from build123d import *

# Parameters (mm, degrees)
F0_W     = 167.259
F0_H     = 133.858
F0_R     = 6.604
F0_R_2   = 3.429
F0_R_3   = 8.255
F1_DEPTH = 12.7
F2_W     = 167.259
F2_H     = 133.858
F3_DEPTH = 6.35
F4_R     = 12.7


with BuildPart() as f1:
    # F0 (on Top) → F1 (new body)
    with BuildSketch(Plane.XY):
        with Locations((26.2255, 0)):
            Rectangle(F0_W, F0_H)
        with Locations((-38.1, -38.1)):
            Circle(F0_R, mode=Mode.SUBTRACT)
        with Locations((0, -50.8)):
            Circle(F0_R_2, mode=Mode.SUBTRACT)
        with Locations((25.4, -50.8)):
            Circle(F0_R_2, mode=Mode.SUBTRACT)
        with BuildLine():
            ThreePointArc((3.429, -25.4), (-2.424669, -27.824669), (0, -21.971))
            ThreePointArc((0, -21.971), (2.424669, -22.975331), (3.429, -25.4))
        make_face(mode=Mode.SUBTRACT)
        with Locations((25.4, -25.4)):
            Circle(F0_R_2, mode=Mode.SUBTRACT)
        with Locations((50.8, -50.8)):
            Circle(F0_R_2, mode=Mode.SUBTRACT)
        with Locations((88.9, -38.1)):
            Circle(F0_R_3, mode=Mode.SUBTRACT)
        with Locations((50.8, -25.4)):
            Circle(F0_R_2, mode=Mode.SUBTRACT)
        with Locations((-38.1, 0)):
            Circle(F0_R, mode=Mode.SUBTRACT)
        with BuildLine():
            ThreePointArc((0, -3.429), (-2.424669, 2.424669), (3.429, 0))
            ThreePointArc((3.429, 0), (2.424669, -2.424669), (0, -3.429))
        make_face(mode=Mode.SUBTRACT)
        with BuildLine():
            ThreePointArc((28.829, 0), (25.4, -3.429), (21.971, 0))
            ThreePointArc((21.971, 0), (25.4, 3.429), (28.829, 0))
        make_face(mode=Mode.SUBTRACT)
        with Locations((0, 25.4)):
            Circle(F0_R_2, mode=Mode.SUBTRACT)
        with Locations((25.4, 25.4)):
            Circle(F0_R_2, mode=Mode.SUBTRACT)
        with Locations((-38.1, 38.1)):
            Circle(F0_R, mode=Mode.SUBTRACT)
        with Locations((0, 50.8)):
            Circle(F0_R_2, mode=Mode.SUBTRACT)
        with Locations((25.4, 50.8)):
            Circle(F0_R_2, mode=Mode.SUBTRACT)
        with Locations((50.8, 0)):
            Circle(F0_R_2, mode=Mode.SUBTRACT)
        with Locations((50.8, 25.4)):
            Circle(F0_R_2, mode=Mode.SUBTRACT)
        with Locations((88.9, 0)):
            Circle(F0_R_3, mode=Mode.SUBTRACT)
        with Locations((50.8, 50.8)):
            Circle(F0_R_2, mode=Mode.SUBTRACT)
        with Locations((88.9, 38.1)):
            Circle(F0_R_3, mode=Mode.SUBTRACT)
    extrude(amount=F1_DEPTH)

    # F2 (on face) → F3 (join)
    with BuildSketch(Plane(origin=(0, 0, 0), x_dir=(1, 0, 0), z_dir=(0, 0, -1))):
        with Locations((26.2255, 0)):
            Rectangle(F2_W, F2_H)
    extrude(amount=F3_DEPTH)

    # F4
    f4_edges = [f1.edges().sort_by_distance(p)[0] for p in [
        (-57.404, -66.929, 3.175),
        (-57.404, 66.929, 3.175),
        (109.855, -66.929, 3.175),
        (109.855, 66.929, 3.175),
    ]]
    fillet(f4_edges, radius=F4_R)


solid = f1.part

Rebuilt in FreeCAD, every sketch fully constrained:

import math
import FreeCAD as App
import Part
import Sketcher
from FreeCAD import Vector
Q = App.Units.Quantity


def edges_at(feature, points):
    """Names of the edges that pass closest to the given points."""
    edges = feature.Shape.Edges
    near = lambda p: min(range(len(edges)), key=lambda i: edges[i].distToShape(Part.Vertex(*p))[0])
    return sorted({f"Edge{near(p) + 1}" for p in points})

doc = App.newDocument("Part")
body = doc.addObject("PartDesign::Body", "Body")

sketch1 = doc.addObject("Sketcher::SketchObject", "Sketch")
body.addObject(sketch1)
sketch1.AttachmentSupport = (doc.XY_Plane, [""])
sketch1.MapMode = "FlatFace"
sketch1.addGeometry(Part.LineSegment(Vector(-57.404, 66.929, 0), Vector(-57.404, -66.929, 0)), False)
sketch1.addGeometry(Part.LineSegment(Vector(-57.404, -66.929, 0), Vector(109.855, -66.929, 0)), False)
sketch1.addGeometry(Part.LineSegment(Vector(109.855, -66.929, 0), Vector(109.855, 66.929, 0)), False)
sketch1.addGeometry(Part.LineSegment(Vector(109.855, 66.929, 0), Vector(-57.404, 66.929, 0)), False)
sketch1.addGeometry(Part.Circle(Vector(-38.1, -38.1, 0), Vector(0, 0, 1), 6.604), False)
sketch1.addGeometry(Part.Circle(Vector(0, -50.8, 0), Vector(0, 0, 1), 3.429), False)
sketch1.addGeometry(Part.Circle(Vector(25.4, -50.8, 0), Vector(0, 0, 1), 3.429), False)
sketch1.addGeometry(Part.ArcOfCircle(Part.Circle(Vector(-0.000001, -25.400001, 0), Vector(0, 0, 1), 3.429001), math.radians(0.000009), math.radians(89.999991)), False)
sketch1.addGeometry(Part.ArcOfCircle(Part.Circle(Vector(0, -25.4, 0), Vector(0, 0, 1), 3.429), math.radians(90.000001), math.radians(359.999999)), False)
sketch1.addGeometry(Part.Circle(Vector(25.4, -25.4, 0), Vector(0, 0, 1), 3.429), False)
sketch1.addGeometry(Part.ArcOfCircle(Part.Circle(Vector(-0.000001, 0.000001, 0), Vector(0, 0, 1), 3.429001), math.radians(-89.999991), math.radians(-0.000009)), False)
sketch1.addGeometry(Part.ArcOfCircle(Part.Circle(Vector(0, 0, 0), Vector(0, 0, 1), 3.429), math.radians(0.000001), math.radians(269.999999)), False)
sketch1.addGeometry(Part.Circle(Vector(50.8, -50.8, 0), Vector(0, 0, 1), 3.429), False)
sketch1.addGeometry(Part.Circle(Vector(88.9, -38.1, 0), Vector(0, 0, 1), 8.255), False)
sketch1.addGeometry(Part.Circle(Vector(50.8, -25.4, 0), Vector(0, 0, 1), 3.429), False)
sketch1.addGeometry(Part.Circle(Vector(-38.1, 0, 0), Vector(0, 0, 1), 6.604), False)
sketch1.addGeometry(Part.Circle(Vector(25.4, 0, 0), Vector(0, 0, 1), 3.429), False)
sketch1.addGeometry(Part.Circle(Vector(0, 25.4, 0), Vector(0, 0, 1), 3.429), False)
sketch1.addGeometry(Part.Circle(Vector(25.4, 25.4, 0), Vector(0, 0, 1), 3.429), False)
sketch1.addGeometry(Part.Circle(Vector(-38.1, 38.1, 0), Vector(0, 0, 1), 6.604), False)
sketch1.addGeometry(Part.Circle(Vector(0, 50.8, 0), Vector(0, 0, 1), 3.429), False)
sketch1.addGeometry(Part.Circle(Vector(25.4, 50.8, 0), Vector(0, 0, 1), 3.429), False)
sketch1.addGeometry(Part.Circle(Vector(50.8, 0, 0), Vector(0, 0, 1), 3.429), False)
sketch1.addGeometry(Part.Circle(Vector(50.8, 25.4, 0), Vector(0, 0, 1), 3.429), False)
sketch1.addGeometry(Part.Circle(Vector(88.9, 0, 0), Vector(0, 0, 1), 8.255), False)
sketch1.addGeometry(Part.Circle(Vector(50.8, 50.8, 0), Vector(0, 0, 1), 3.429), False)
sketch1.addGeometry(Part.Circle(Vector(88.9, 38.1, 0), Vector(0, 0, 1), 8.255), False)
sketch1.addConstraint(Sketcher.Constraint("Coincident", 0, 2, 1, 1))
sketch1.addConstraint(Sketcher.Constraint("Coincident", 1, 2, 2, 1))
sketch1.addConstraint(Sketcher.Constraint("Coincident", 2, 2, 3, 1))
sketch1.addConstraint(Sketcher.Constraint("Coincident", 3, 2, 0, 1))
sketch1.addConstraint(Sketcher.Constraint("Tangent", 7, 1, 8, 2))
sketch1.addConstraint(Sketcher.Constraint("Coincident", 8, 1, 7, 2))
sketch1.addConstraint(Sketcher.Constraint("Tangent", 10, 1, 11, 2))
sketch1.addConstraint(Sketcher.Constraint("Coincident", 11, 1, 10, 2))
sketch1.addConstraint(Sketcher.Constraint("Vertical", 0))
sketch1.addConstraint(Sketcher.Constraint("Horizontal", 1))
sketch1.addConstraint(Sketcher.Constraint("Vertical", 2))
sketch1.addConstraint(Sketcher.Constraint("Horizontal", 3))
sketch1.addConstraint(Sketcher.Constraint("Coincident", 10, 3, -1, 1))
sketch1.addConstraint(Sketcher.Constraint("Equal", 5, 6))
sketch1.addConstraint(Sketcher.Constraint("Equal", 6, 7))
sketch1.addConstraint(Sketcher.Constraint("Equal", 8, 9))
sketch1.addConstraint(Sketcher.Constraint("Equal", 9, 10))
sketch1.addConstraint(Sketcher.Constraint("Equal", 11, 12))
sketch1.addConstraint(Sketcher.Constraint("Equal", 12, 14))
sketch1.addConstraint(Sketcher.Constraint("Equal", 4, 15))
sketch1.addConstraint(Sketcher.Constraint("Equal", 14, 16))
sketch1.addConstraint(Sketcher.Constraint("Equal", 16, 17))
sketch1.addConstraint(Sketcher.Constraint("Equal", 17, 18))
sketch1.addConstraint(Sketcher.Constraint("Equal", 15, 19))
sketch1.addConstraint(Sketcher.Constraint("Equal", 18, 20))
sketch1.addConstraint(Sketcher.Constraint("Equal", 20, 21))
sketch1.addConstraint(Sketcher.Constraint("Equal", 21, 22))
sketch1.addConstraint(Sketcher.Constraint("Equal", 22, 23))
sketch1.addConstraint(Sketcher.Constraint("Equal", 13, 24))
sketch1.addConstraint(Sketcher.Constraint("Equal", 23, 25))
sketch1.addConstraint(Sketcher.Constraint("Equal", 24, 26))
sketch1.addConstraint(Sketcher.Constraint("Symmetric", 7, 3, 17, 3, -1, 1))
sketch1.addConstraint(Sketcher.Constraint("Symmetric", 5, 3, 20, 3, -1, 1))
sketch1.addConstraint(Sketcher.Constraint("Symmetric", 9, 3, 18, 3, -1))
sketch1.addConstraint(Sketcher.Constraint("Symmetric", 4, 3, 19, 3, -1))
sketch1.addConstraint(Sketcher.Constraint("Symmetric", 6, 3, 21, 3, -1))
sketch1.addConstraint(Sketcher.Constraint("Symmetric", 14, 3, 23, 3, -1))
sketch1.addConstraint(Sketcher.Constraint("Symmetric", 12, 3, 25, 3, -1))
sketch1.addConstraint(Sketcher.Constraint("Symmetric", 13, 3, 26, 3, -1))
sketch1.addConstraint(Sketcher.Constraint("PointOnObject", 5, 3, -2))
sketch1.addConstraint(Sketcher.Constraint("PointOnObject", 7, 3, -2))
sketch1.addConstraint(Sketcher.Constraint("PointOnObject", 15, 3, -1))
sketch1.addConstraint(Sketcher.Constraint("PointOnObject", 16, 3, -1))
sketch1.addConstraint(Sketcher.Constraint("PointOnObject", 22, 3, -1))
sketch1.addConstraint(Sketcher.Constraint("PointOnObject", 24, 3, -1))
sketch1.addConstraint(Sketcher.Constraint("PointOnObject", 8, 1, -2))
sketch1.addConstraint(Sketcher.Constraint("PointOnObject", 10, 1, -2))
sketch1.addConstraint(Sketcher.Constraint("PointOnObject", 11, 1, -1))
sketch1.addConstraint(Sketcher.Constraint("Horizontal", 5, 3, 6, 3))
sketch1.addConstraint(Sketcher.Constraint("Horizontal", 8, 3, 9, 3))
sketch1.addConstraint(Sketcher.Constraint("Horizontal", 6, 3, 12, 3))
sketch1.addConstraint(Sketcher.Constraint("Horizontal", 4, 3, 13, 3))
sketch1.addConstraint(Sketcher.Constraint("Horizontal", 9, 3, 14, 3))
sketch1.addConstraint(Sketcher.Constraint("Horizontal", 14, 3, 7, 1))
sketch1.addConstraint(Sketcher.Constraint("Vertical", 6, 3, 9, 3))
sketch1.addConstraint(Sketcher.Constraint("Vertical", 12, 3, 14, 3))
sketch1.addConstraint(Sketcher.Constraint("Vertical", 4, 3, 15, 3))
sketch1.addConstraint(Sketcher.Constraint("Vertical", 9, 3, 16, 3))
sketch1.addConstraint(Sketcher.Constraint("Vertical", 14, 3, 22, 3))
sketch1.addConstraint(Sketcher.Constraint("Vertical", 13, 3, 24, 3))
sketch1.addConstraint(Sketcher.Constraint("Diameter", 4, Q("0.52 in")))
sketch1.addConstraint(Sketcher.Constraint("Diameter", 5, Q("0.27 in")))
sketch1.addConstraint(Sketcher.Constraint("Diameter", 13, Q("0.65 in")))
sketch1.addConstraint(Sketcher.Constraint("DistanceY", 5, 3, -1, 1, Q("2 in")))
sketch1.addConstraint(Sketcher.Constraint("DistanceX", -1, 1, 6, 3, Q("1 in")))
sketch1.addConstraint(Sketcher.Constraint("DistanceY", 7, 3, -1, 1, Q("1 in")))
sketch1.addConstraint(Sketcher.Constraint("DistanceX", -1, 1, 12, 3, Q("2 in")))
sketch1.addConstraint(Sketcher.Constraint("DistanceY", 0, 2, 0, 1, Q("5.27 in")))
sketch1.addConstraint(Sketcher.Constraint("DistanceX", 4, 3, -1, 1, Q("1.5 in")))
sketch1.addConstraint(Sketcher.Constraint("DistanceY", 4, 3, -1, 1, Q("1.5 in")))
sketch1.addConstraint(Sketcher.Constraint("DistanceX", -1, 1, 13, 3, Q("3.5 in")))
sketch1.addConstraint(Sketcher.Constraint("DistanceX", 1, 1, 1, 2, Q("6.585 in")))
sketch1.addConstraint(Sketcher.Constraint("DistanceX", 0, 2, -1, 1, Q("2.26 in")))
sketch1.addConstraint(Sketcher.Constraint("DistanceY", 0, 2, -1, 1, Q("2.635 in")))
pad1 = doc.addObject("PartDesign::Pad", "Pad")
body.addObject(pad1)
pad1.Profile = sketch1
pad1.Length = Q("0.5 in")

sketch2 = doc.addObject("Sketcher::SketchObject", "Sketch001")
body.addObject(sketch2)
sketch2.AttachmentSupport = (doc.XY_Plane, [""])
sketch2.MapMode = "FlatFace"
sketch2.addGeometry(Part.LineSegment(Vector(-57.404, -66.929, 0), Vector(-57.404, 66.929, 0)), False)
sketch2.addGeometry(Part.LineSegment(Vector(-57.404, 66.929, 0), Vector(109.855, 66.929, 0)), False)
sketch2.addGeometry(Part.LineSegment(Vector(109.855, 66.929, 0), Vector(109.855, -66.929, 0)), False)
sketch2.addGeometry(Part.LineSegment(Vector(109.855, -66.929, 0), Vector(-57.404, -66.929, 0)), False)
sketch2.addConstraint(Sketcher.Constraint("Coincident", 0, 2, 1, 1))
sketch2.addConstraint(Sketcher.Constraint("Coincident", 1, 2, 2, 1))
sketch2.addConstraint(Sketcher.Constraint("Coincident", 2, 2, 3, 1))
sketch2.addConstraint(Sketcher.Constraint("Coincident", 3, 2, 0, 1))
sketch2.addConstraint(Sketcher.Constraint("Vertical", 0))
sketch2.addConstraint(Sketcher.Constraint("Horizontal", 1))
sketch2.addConstraint(Sketcher.Constraint("Vertical", 2))
sketch2.addConstraint(Sketcher.Constraint("Horizontal", 3))
sketch2.addConstraint(Sketcher.Constraint("DistanceY", 0, 1, 0, 2, Q("5.27 in")))
sketch2.addConstraint(Sketcher.Constraint("DistanceX", 1, 1, 1, 2, Q("6.585 in")))
sketch2.addConstraint(Sketcher.Constraint("DistanceX", 0, 2, -1, 1, Q("2.26 in")))
sketch2.addConstraint(Sketcher.Constraint("DistanceY", -1, 1, 0, 2, Q("2.635 in")))
pad2 = doc.addObject("PartDesign::Pad", "Pad001")
body.addObject(pad2)
pad2.Profile = sketch2
pad2.Length = Q("0.25 in")
pad2.Reversed = True
doc.recompute()

fillet = doc.addObject("PartDesign::Fillet", "Fillet")
body.addObject(fillet)
fillet.Base = (pad2, edges_at(pad2, [
    (-57.404, -66.929, 3.175),
    (-57.404, 66.929, 3.175),
    (109.855, -66.929, 3.175),
    (109.855, 66.929, 3.175),
]))
fillet.Radius = Q("0.5 in")

doc.recompute()
